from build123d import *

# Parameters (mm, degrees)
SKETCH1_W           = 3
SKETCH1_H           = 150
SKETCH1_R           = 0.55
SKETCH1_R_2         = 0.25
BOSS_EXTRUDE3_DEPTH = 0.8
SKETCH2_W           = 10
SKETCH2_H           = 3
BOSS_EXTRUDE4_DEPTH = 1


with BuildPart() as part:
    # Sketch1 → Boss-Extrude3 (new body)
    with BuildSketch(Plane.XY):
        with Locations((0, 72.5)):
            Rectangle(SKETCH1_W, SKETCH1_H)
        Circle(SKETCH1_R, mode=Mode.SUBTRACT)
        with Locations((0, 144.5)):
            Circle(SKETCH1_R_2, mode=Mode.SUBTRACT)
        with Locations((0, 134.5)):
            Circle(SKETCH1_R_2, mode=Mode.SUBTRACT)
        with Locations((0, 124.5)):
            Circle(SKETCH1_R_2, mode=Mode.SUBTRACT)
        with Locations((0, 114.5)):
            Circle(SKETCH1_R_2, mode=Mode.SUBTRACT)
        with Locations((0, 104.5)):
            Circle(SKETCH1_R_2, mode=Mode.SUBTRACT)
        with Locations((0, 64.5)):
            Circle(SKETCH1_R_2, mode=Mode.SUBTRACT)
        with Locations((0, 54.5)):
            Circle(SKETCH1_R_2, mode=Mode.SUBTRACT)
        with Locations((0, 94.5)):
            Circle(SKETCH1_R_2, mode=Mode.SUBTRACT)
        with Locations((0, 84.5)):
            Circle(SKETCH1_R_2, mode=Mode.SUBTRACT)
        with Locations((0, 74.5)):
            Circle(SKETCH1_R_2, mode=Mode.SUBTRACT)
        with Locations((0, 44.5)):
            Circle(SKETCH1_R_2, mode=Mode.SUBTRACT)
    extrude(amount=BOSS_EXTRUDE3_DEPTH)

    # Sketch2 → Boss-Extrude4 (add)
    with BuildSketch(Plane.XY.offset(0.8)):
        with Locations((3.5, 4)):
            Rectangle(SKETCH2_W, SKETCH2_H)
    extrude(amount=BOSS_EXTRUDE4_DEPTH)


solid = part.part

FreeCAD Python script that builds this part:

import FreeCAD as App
import Part
import Sketcher
from FreeCAD import Vector
Q = App.Units.Quantity


def add_polygon(sketch, points):
    """Adds a closed chain of lines whose ends are joined by coincident constraints."""
    first, n = sketch.GeometryCount, len(points)
    for a, b in zip(points, points[1:] + points[:1]):
        sketch.addGeometry(Part.LineSegment(App.Vector(*a, 0), App.Vector(*b, 0)), False)
    for i in range(n):
        sketch.addConstraint(Sketcher.Constraint("Coincident", first + i, 2, first + (i + 1) % n, 1))

doc = App.newDocument("Part")
body = doc.addObject("PartDesign::Body", "Body")

sketch1 = body.newObject("Sketcher::SketchObject", "Sketch")
sketch1.AttachmentSupport = (doc.getObject("XY_Plane"), [""])
sketch1.MapMode = "FlatFace"
add_polygon(sketch1, [(-1.5, 147.5), (-1.5, -2.5), (1.5, -2.5), (1.5, 147.5)])
sketch1.addGeometry(Part.Circle(Vector(0, 0, 0), Vector(0, 0, 1), 0.55), False)
sketch1.addGeometry(Part.Circle(Vector(0, 44.5, 0), Vector(0, 0, 1), 0.25), False)
sketch1.addGeometry(Part.Circle(Vector(0, 54.5, 0), Vector(0, 0, 1), 0.25), False)
sketch1.addGeometry(Part.Circle(Vector(0, 64.5, 0), Vector(0, 0, 1), 0.25), False)
sketch1.addGeometry(Part.Circle(Vector(0, 74.5, 0), Vector(0, 0, 1), 0.25), False)
sketch1.addGeometry(Part.Circle(Vector(0, 84.5, 0), Vector(0, 0, 1), 0.25), False)
sketch1.addGeometry(Part.Circle(Vector(0, 94.5, 0), Vector(0, 0, 1), 0.25), False)
sketch1.addGeometry(Part.Circle(Vector(0, 104.5, 0), Vector(0, 0, 1), 0.25), False)
sketch1.addGeometry(Part.Circle(Vector(0, 114.5, 0), Vector(0, 0, 1), 0.25), False)
sketch1.addGeometry(Part.Circle(Vector(0, 124.5, 0), Vector(0, 0, 1), 0.25), False)
sketch1.addGeometry(Part.Circle(Vector(0, 134.5, 0), Vector(0, 0, 1), 0.25), False)
sketch1.addGeometry(Part.Circle(Vector(0, 144.5, 0), Vector(0, 0, 1), 0.25), False)
sketch1.addConstraint([
    Sketcher.Constraint("Vertical", 0),
    Sketcher.Constraint("Horizontal", 1),
    Sketcher.Constraint("Vertical", 2),
    Sketcher.Constraint("Horizontal", 3),
    Sketcher.Constraint("Coincident", 4, 3, -1, 1),
    Sketcher.Constraint("Equal", 5, 6),
    Sketcher.Constraint("Equal", 6, 7),
    Sketcher.Constraint("Equal", 7, 8),
    Sketcher.Constraint("Equal", 8, 9),
    Sketcher.Constraint("Equal", 9, 10),
    Sketcher.Constraint("Equal", 10, 11),
    Sketcher.Constraint("Equal", 11, 12),
    Sketcher.Constraint("Equal", 12, 13),
    Sketcher.Constraint("Equal", 13, 14),
    Sketcher.Constraint("Equal", 14, 15),
    Sketcher.Constraint("PointOnObject", 5, 3, -2),
    Sketcher.Constraint("PointOnObject", 6, 3, -2),
    Sketcher.Constraint("PointOnObject", 7, 3, -2),
    Sketcher.Constraint("PointOnObject", 8, 3, -2),
    Sketcher.Constraint("PointOnObject", 9, 3, -2),
    Sketcher.Constraint("PointOnObject", 10, 3, -2),
    Sketcher.Constraint("PointOnObject", 11, 3, -2),
    Sketcher.Constraint("PointOnObject", 12, 3, -2),
    Sketcher.Constraint("PointOnObject", 13, 3, -2),
    Sketcher.Constraint("PointOnObject", 14, 3, -2),
    Sketcher.Constraint("PointOnObject", 15, 3, -2),
    Sketcher.Constraint("Diameter", 4, Q("1.1 mm")),
    Sketcher.Constraint("Diameter", 5, Q("0.5 mm")),
    Sketcher.Constraint("DistanceX", 1, 1, 1, 2, Q("3 mm")),
    Sketcher.Constraint("DistanceY", 0, 2, 0, 1, Q("150 mm")),
    Sketcher.Constraint("DistanceY", 5, 3, 6, 3, Q("10 mm")),
    Sketcher.Constraint("DistanceY", 6, 3, 7, 3, Q("10 mm")),
    Sketcher.Constraint("DistanceY", 7, 3, 8, 3, Q("10 mm")),
    Sketcher.Constraint("DistanceY", 8, 3, 9, 3, Q("10 mm")),
    Sketcher.Constraint("DistanceY", 9, 3, 10, 3, Q("10 mm")),
    Sketcher.Constraint("DistanceY", 10, 3, 11, 3, Q("10 mm")),
    Sketcher.Constraint("DistanceY", 11, 3, 12, 3, Q("10 mm")),
    Sketcher.Constraint("DistanceY", 12, 3, 13, 3, Q("10 mm")),
    Sketcher.Constraint("DistanceY", 13, 3, 14, 3, Q("10 mm")),
    Sketcher.Constraint("DistanceY", 14, 3, 15, 3, Q("10 mm")),
    Sketcher.Constraint("DistanceY", 0, 2, 5, 3, Q("47 mm")),
    Sketcher.Constraint("DistanceY", -1, 1, 5, 3, Q("44.5 mm")),
    Sketcher.Constraint("DistanceX", 0, 2, -1, 1, Q("1.5 mm")),
])
pad1 = body.newObject("PartDesign::Pad", "Pad")
pad1.Profile = sketch1
pad1.Length = 0.8

sketch2 = body.newObject("Sketcher::SketchObject", "Sketch001")
sketch2.AttachmentSupport = (doc.getObject("XY_Plane"), [""])
sketch2.MapMode = "FlatFace"
sketch2.AttachmentOffset = App.Placement(Vector(0, 0, 0.8), App.Rotation())
add_polygon(sketch2, [(-1.5, 5.5), (-1.5, 2.5), (8.5, 2.5), (8.5, 5.5)])
sketch2.addConstraint([
    Sketcher.Constraint("Vertical", 0),
    Sketcher.Constraint("Horizontal", 1),
    Sketcher.Constraint("Vertical", 2),
    Sketcher.Constraint("Horizontal", 3),
    Sketcher.Constraint("DistanceX", 1, 1, 1, 2, Q("10 mm")),
    Sketcher.Constraint("DistanceY", 0, 2, 0, 1, Q("3 mm")),
    Sketcher.Constraint("DistanceX", 0, 2, -1, 1, Q("1.5 mm")),
    Sketcher.Constraint("DistanceY", -1, 1, 0, 2, Q("2.5 mm")),
])
pad2 = body.newObject("PartDesign::Pad", "Pad001")
pad2.Profile = sketch2
pad2.Length = 1

doc.recompute()
